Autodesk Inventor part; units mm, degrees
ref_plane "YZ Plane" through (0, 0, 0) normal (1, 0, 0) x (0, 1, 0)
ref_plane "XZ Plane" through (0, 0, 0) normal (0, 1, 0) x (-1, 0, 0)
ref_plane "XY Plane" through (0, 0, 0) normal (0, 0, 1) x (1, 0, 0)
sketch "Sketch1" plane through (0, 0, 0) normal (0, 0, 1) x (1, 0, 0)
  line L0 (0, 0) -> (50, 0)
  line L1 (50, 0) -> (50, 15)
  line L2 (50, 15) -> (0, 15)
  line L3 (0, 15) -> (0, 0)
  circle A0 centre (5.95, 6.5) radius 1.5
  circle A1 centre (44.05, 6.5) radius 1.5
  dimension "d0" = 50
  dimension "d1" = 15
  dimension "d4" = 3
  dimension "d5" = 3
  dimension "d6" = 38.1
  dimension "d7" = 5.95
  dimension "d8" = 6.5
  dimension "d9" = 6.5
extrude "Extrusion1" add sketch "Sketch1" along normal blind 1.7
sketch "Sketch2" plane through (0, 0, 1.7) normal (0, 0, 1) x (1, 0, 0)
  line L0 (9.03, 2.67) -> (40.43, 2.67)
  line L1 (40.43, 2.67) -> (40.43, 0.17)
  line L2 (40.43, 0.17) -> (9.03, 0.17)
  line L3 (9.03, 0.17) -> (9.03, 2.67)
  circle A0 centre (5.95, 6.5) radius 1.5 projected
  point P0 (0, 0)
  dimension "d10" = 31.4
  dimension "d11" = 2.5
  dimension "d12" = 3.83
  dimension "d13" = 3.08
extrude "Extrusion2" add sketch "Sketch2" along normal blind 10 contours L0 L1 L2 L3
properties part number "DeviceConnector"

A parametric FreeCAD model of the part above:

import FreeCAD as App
import Part
import Sketcher

V = App.Vector

doc = App.newDocument("Part")
body = doc.addObject("PartDesign::Body", "Body")

# Sketch on XY plane
sketch1 = body.newObject("Sketcher::SketchObject", "Sketch")
sketch1.AttachmentSupport = (doc.getObject("XY_Plane"), [""])
sketch1.MapMode = "FlatFace"
sketch1.addGeometry([
    Part.LineSegment(V(0, 15, 0), V(0, 0, 0)),  # 0
    Part.LineSegment(V(0, 0, 0), V(50, 0, 0)),  # 1
    Part.LineSegment(V(50, 0, 0), V(50, 15, 0)),  # 2
    Part.LineSegment(V(50, 15, 0), V(0, 15, 0)),  # 3
    Part.Circle(V(6, 6.5, 0), V(0, 0, 1), 1.5),  # 4
    Part.Circle(V(44, 6.5, 0), V(0, 0, 1), 1.5),  # 5
], False)
sketch1.addConstraint([
    Sketcher.Constraint("Coincident", 0, 2, 1, 1),
    Sketcher.Constraint("Coincident", 1, 2, 2, 1),
    Sketcher.Constraint("Coincident", 2, 2, 3, 1),
    Sketcher.Constraint("Coincident", 3, 2, 0, 1),
    Sketcher.Constraint("Vertical", 0),
    Sketcher.Constraint("Horizontal", 1),
    Sketcher.Constraint("Vertical", 2),
    Sketcher.Constraint("Horizontal", 3),
    Sketcher.Constraint("Coincident", 0, 2, -1, 1),
    Sketcher.Constraint("Equal", 4, 5),
    Sketcher.Constraint("Horizontal", 4, 3, 5, 3),
    Sketcher.Constraint("Diameter", 4, 3.0),
    Sketcher.Constraint("DistanceX", 1, 1, 1, 2, 50.0),
    Sketcher.Constraint("DistanceY", 0, 2, 0, 1, 15.0),
    Sketcher.Constraint("DistanceY", -1, 1, 4, 3, 6.5),
    Sketcher.Constraint("DistanceX", 4, 3, 5, 3, 38.1),
    Sketcher.Constraint("DistanceX", -1, 1, 4, 3, 5.95),
])
pad1 = body.newObject("PartDesign::Pad", "Pad")
pad1.Profile = sketch1
pad1.Length = 1.7

# Sketch on XY plane
sketch2 = body.newObject("Sketcher::SketchObject", "Sketch001")
sketch2.AttachmentSupport = (doc.getObject("XY_Plane"), [""])
sketch2.MapMode = "FlatFace"
sketch2.AttachmentOffset = App.Placement(V(0, 0, 1.7), App.Rotation())
sketch2.addGeometry([
    Part.LineSegment(V(40.4, 2.7, 0), V(9, 2.7, 0)),
    Part.LineSegment(V(9, 2.7, 0), V(9, 0.2, 0)),
    Part.LineSegment(V(9, 0.2, 0), V(40.4, 0.2, 0)),
    Part.LineSegment(V(40.4, 0.2, 0), V(40.4, 2.7, 0)),
], False)
sketch2.addConstraint([
    Sketcher.Constraint("Coincident", 0, 2, 1, 1),
    Sketcher.Constraint("Coincident", 1, 2, 2, 1),
    Sketcher.Constraint("Coincident", 2, 2, 3, 1),
    Sketcher.Constraint("Coincident", 3, 2, 0, 1),
    Sketcher.Constraint("Horizontal", 0),
    Sketcher.Constraint("Vertical", 1),
    Sketcher.Constraint("Horizontal", 2),
    Sketcher.Constraint("Vertical", 3),
    Sketcher.Constraint("DistanceX", 0, 2, 0, 1, 31.4),
    Sketcher.Constraint("DistanceY", 1, 2, 1, 1, 2.5),
    Sketcher.Constraint("DistanceX", -1, 1, 0, 2, 9.03),
    Sketcher.Constraint("DistanceY", -1, 1, 0, 2, 2.67),
])
pad2 = body.newObject("PartDesign::Pad", "Pad001")
pad2.Profile = sketch2
pad2.Length = 10

doc.recompute()
